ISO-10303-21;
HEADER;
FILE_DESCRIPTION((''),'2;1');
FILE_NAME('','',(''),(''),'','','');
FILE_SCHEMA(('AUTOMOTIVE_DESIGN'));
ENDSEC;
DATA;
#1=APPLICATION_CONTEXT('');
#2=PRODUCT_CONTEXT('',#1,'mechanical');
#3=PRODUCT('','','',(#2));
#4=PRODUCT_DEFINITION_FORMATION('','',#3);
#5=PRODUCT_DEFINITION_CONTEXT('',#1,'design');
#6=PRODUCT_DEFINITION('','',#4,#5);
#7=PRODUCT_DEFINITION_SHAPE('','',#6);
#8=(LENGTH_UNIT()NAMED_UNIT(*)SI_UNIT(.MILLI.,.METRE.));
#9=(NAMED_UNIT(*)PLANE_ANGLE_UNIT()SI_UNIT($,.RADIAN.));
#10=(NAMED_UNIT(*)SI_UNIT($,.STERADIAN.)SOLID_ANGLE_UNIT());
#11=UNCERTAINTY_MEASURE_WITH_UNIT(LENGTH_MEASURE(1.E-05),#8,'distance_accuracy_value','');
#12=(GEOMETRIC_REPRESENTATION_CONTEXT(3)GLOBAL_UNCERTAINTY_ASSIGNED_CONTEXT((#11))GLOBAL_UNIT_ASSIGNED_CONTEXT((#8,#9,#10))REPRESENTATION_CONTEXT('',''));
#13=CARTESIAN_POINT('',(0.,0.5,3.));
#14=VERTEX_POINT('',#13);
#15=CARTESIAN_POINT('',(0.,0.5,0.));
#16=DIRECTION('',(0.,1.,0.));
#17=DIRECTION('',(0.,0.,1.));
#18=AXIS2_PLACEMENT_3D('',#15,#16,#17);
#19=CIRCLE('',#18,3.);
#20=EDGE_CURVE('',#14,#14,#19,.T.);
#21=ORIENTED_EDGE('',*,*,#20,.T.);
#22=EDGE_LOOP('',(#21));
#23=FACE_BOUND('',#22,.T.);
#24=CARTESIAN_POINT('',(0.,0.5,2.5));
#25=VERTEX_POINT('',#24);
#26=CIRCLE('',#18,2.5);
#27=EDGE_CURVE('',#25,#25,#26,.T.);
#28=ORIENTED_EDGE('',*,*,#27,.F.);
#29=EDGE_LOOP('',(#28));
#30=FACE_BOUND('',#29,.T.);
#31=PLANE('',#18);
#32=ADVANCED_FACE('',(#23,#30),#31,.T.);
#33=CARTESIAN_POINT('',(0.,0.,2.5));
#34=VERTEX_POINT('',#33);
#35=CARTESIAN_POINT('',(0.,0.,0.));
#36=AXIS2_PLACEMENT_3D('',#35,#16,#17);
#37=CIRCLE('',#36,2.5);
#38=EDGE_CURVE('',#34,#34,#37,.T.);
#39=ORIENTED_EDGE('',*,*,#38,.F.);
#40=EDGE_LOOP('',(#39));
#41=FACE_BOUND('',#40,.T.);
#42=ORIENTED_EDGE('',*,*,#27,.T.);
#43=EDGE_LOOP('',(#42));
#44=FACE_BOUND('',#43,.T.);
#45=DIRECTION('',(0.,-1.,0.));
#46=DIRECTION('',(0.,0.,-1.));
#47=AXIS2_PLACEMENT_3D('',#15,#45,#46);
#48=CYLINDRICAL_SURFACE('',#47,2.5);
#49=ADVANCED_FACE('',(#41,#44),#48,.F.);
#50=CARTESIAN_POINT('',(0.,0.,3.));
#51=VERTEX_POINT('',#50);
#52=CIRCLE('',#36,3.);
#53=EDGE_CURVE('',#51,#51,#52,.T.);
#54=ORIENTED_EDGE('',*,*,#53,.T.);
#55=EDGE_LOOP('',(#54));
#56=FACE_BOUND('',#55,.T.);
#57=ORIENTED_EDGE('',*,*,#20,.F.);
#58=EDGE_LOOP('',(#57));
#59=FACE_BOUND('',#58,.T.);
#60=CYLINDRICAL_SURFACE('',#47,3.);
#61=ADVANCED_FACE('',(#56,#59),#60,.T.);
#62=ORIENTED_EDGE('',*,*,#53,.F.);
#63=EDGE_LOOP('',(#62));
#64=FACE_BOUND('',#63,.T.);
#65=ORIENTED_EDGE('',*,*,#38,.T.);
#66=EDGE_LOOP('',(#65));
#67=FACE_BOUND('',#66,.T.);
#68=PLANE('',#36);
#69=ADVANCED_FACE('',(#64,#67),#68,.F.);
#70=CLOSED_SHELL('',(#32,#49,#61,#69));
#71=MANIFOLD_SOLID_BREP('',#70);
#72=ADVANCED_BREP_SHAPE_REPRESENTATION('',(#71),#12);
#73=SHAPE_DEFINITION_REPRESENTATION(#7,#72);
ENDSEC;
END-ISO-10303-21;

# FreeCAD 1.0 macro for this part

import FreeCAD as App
import Part
import Sketcher

V = App.Vector

doc = App.newDocument("Part")
params = doc.addObject("Spreadsheet::Sheet", "Params")
for row, (alias, value) in enumerate([
    ("sketch1_diameter", "6 mm"),
    ("sketch1_diameter2", "5 mm"),
    ("pad1_length", "0.5 mm"),
], start=1):
    params.set(f"A{row}", alias)
    params.set(f"B{row}", "=" + value)
    params.setAlias(f"B{row}", alias)

body = doc.addObject("PartDesign::Body", "Body")

sketch1 = body.newObject("Sketcher::SketchObject", "Sketch")
sketch1.AttachmentSupport = (doc.getObject("XZ_Plane"), [""])
sketch1.MapMode = "FlatFace"
sketch1.addGeometry([
    Part.Circle(V(0, 0, 0), V(0, 0, 1), 3),
    Part.Circle(V(0, 0, 0), V(0, 0, 1), 2.5),
], False)
sketch1.addConstraint([
    Sketcher.Constraint("Coincident", 0, 3, -1, 1),
    Sketcher.Constraint("Coincident", 1, 3, -1, 1),
    Sketcher.Constraint("Diameter", 0, 6.0),
    Sketcher.Constraint("Diameter", 1, 5.0),
])
sketch1.setExpression("Constraints[2]", "Params.sketch1_diameter")
sketch1.setExpression("Constraints[3]", "Params.sketch1_diameter2")
pad1 = body.newObject("PartDesign::Pad", "Pad")
pad1.Profile = sketch1
pad1.setExpression("Length", "Params.pad1_length")
pad1.Reversed = True

doc.recompute()
